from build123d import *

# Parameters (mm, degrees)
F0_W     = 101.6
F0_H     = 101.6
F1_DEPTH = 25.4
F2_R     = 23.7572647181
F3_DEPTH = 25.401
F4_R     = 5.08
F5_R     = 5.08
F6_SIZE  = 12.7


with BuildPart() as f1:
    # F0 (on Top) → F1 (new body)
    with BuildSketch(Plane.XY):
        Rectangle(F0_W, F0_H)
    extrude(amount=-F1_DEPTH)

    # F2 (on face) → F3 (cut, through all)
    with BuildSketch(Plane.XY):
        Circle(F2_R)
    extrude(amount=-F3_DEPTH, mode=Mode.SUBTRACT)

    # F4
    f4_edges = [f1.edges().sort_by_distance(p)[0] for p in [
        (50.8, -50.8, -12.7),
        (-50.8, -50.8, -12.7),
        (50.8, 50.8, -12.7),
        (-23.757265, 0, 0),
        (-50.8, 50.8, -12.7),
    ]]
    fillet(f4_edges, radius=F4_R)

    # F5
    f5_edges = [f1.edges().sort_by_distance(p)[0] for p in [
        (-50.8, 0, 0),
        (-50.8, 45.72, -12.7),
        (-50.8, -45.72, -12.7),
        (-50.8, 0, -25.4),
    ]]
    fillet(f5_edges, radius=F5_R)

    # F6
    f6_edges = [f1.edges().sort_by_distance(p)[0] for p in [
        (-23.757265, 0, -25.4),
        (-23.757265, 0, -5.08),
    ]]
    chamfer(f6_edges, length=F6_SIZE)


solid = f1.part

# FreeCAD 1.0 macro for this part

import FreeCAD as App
import Part
import Sketcher
Q = App.Units.Quantity


def edges_at(feature, points):
    """Names of the edges that pass closest to the given points."""
    edges = feature.Shape.Edges
    near = lambda p: min(range(len(edges)), key=lambda i: edges[i].distToShape(Part.Vertex(*p))[0])
    return sorted({f"Edge{near(p) + 1}" for p in points})

doc = App.newDocument("Part")
body = doc.addObject("PartDesign::Body", "Body")

# Sketch on XY plane
sketch1 = body.newObject("Sketcher::SketchObject", "Sketch")
sketch1.AttachmentSupport = (doc.getObject("XY_Plane"), [""])
sketch1.MapMode = "FlatFace"
sketch1.addGeometry([
    Part.LineSegment(App.Vector(-51, 51, 0), App.Vector(-51, -51, 0)),
    Part.LineSegment(App.Vector(-51, -51, 0), App.Vector(51, -51, 0)),
    Part.LineSegment(App.Vector(51, -51, 0), App.Vector(51, 51, 0)),
    Part.LineSegment(App.Vector(51, 51, 0), App.Vector(-51, 51, 0)),
], False)
sketch1.addConstraint([
    Sketcher.Constraint("Coincident", 0, 2, 1, 1),
    Sketcher.Constraint("Coincident", 1, 2, 2, 1),
    Sketcher.Constraint("Coincident", 2, 2, 3, 1),
    Sketcher.Constraint("Coincident", 3, 2, 0, 1),
    Sketcher.Constraint("Vertical", 0),
    Sketcher.Constraint("Horizontal", 1),
    Sketcher.Constraint("Vertical", 2),
    Sketcher.Constraint("Horizontal", 3),
    Sketcher.Constraint("Symmetric", 0, 2, 2, 2, -1, 1),
    Sketcher.Constraint("Equal", 3, 0),
    Sketcher.Constraint("DistanceX", 1, 1, 1, 2, Q("4 in")),
])
pad1 = body.newObject("PartDesign::Pad", "Pad")
pad1.Profile = sketch1
pad1.Length = Q("1 in")
pad1.Reversed = True

# Sketch on XY plane
sketch2 = body.newObject("Sketcher::SketchObject", "Sketch001")
sketch2.AttachmentSupport = (doc.getObject("XY_Plane"), [""])
sketch2.MapMode = "FlatFace"
sketch2.addGeometry(Part.Circle(App.Vector(0, 0, 0), App.Vector(0, 0, 1), 24), False)
sketch2.addConstraint([
    Sketcher.Constraint("Coincident", 0, 3, -1, 1),
    Sketcher.Constraint("Diameter", 0, Q("47.514529 mm")),
])
pocket1 = body.newObject("PartDesign::Pocket", "Pocket")
pocket1.Profile = sketch2
pocket1.Type = "ThroughAll"
doc.recompute()

fillet = body.newObject("PartDesign::Fillet", "Fillet")
fillet.Base = (pocket1, edges_at(pocket1, [
    (50.8, -50.8, -12.7),
    (-50.8, -50.8, -12.7),
    (50.8, 50.8, -12.7),
    (-23.757, 0, 0),
    (-50.8, 50.8, -12.7),
]))
fillet.Radius = Q("0.2 in")
doc.recompute()

fillet2 = body.newObject("PartDesign::Fillet", "Fillet001")
fillet2.Base = (fillet, edges_at(fillet, [
    (-50.8, 0, 0),
    (-50.8, 45.72, -12.7),
    (-50.8, -45.72, -12.7),
    (-50.8, 0, -25.4),
]))
fillet2.Radius = Q("0.2 in")
doc.recompute()

chamfer = body.newObject("PartDesign::Chamfer", "Chamfer")
chamfer.Base = (fillet2, edges_at(fillet2, [(-23.757, 0, -25.4), (-23.757, 0, -5.08)]))
chamfer.Size = Q("0.5 in")

doc.recompute()
